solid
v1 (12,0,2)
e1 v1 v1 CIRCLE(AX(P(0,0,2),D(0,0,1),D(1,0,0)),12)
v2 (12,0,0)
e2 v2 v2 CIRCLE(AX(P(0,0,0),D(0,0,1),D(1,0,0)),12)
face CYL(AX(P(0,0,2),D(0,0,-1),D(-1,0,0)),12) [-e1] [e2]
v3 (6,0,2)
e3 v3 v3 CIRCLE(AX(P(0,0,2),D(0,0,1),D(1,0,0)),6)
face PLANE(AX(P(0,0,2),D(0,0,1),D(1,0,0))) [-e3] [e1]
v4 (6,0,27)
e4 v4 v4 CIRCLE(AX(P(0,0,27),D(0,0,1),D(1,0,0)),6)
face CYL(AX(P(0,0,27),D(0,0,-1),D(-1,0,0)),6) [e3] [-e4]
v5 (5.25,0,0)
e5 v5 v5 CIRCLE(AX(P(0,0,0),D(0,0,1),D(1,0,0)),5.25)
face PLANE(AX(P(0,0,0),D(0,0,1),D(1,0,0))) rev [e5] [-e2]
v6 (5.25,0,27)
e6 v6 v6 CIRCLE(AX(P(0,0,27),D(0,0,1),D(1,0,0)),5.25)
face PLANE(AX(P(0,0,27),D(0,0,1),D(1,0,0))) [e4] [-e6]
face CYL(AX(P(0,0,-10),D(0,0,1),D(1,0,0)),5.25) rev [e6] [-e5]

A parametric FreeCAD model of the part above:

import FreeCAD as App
import Part
import Sketcher
Q = App.Units.Quantity

doc = App.newDocument("Part")
params = doc.addObject("Spreadsheet::Sheet", "Params")
for row, (alias, value) in enumerate([
    ("sketch1_diameter", "24 mm"),
    ("pad1_length", "2 mm"),
    ("sketch2_diameter", "12 mm"),
    ("pad2_length", "25 mm"),
    ("sketch3_diameter", "10.5 mm"),
    ("pocket1_length", "37 mm"),
], start=1):
    params.set(f"A{row}", alias)
    params.set(f"B{row}", "=" + value)
    params.setAlias(f"B{row}", alias)

body = doc.addObject("PartDesign::Body", "Body")

# Sketch on XY plane
sketch1 = body.newObject("Sketcher::SketchObject", "Sketch")
sketch1.AttachmentSupport = (doc.getObject("XY_Plane"), [""])
sketch1.MapMode = "FlatFace"
sketch1.addGeometry(Part.Circle(App.Vector(0, 0, 0), App.Vector(0, 0, 1), 12), False)
sketch1.addConstraint(Sketcher.Constraint("Coincident", 0, 3, -1, 1))
sketch1.addConstraint(Sketcher.Constraint("Diameter", 0, Q("24 mm")))
sketch1.setExpression("Constraints[1]", "Params.sketch1_diameter")
pad1 = body.newObject("PartDesign::Pad", "Pad")
pad1.Profile = sketch1
pad1.setExpression("Length", "Params.pad1_length")

# Sketch on XY plane
sketch2 = body.newObject("Sketcher::SketchObject", "Sketch001")
sketch2.AttachmentSupport = (doc.getObject("XY_Plane"), [""])
sketch2.MapMode = "FlatFace"
sketch2.AttachmentOffset = App.Placement(App.Vector(0, 0, 2), App.Rotation())
sketch2.addGeometry(Part.Circle(App.Vector(0, 0, 0), App.Vector(0, 0, 1), 6), False)
sketch2.addConstraint(Sketcher.Constraint("Coincident", 0, 3, -1, 1))
sketch2.addConstraint(Sketcher.Constraint("Diameter", 0, Q("12 mm")))
sketch2.setExpression("Constraints[1]", "Params.sketch2_diameter")
pad2 = body.newObject("PartDesign::Pad", "Pad001")
pad2.Profile = sketch2
pad2.setExpression("Length", "Params.pad2_length")

# Sketch on XY plane
sketch3 = body.newObject("Sketcher::SketchObject", "Sketch002")
sketch3.AttachmentSupport = (doc.getObject("XY_Plane"), [""])
sketch3.MapMode = "FlatFace"
sketch3.AttachmentOffset = App.Placement(App.Vector(0, 0, 27), App.Rotation())
sketch3.addGeometry(Part.Circle(App.Vector(0, 0, 0), App.Vector(0, 0, 1), 5), False)
sketch3.addConstraint(Sketcher.Constraint("Coincident", 0, 3, -1, 1))
sketch3.addConstraint(Sketcher.Constraint("Diameter", 0, Q("10.5 mm")))
sketch3.setExpression("Constraints[1]", "Params.sketch3_diameter")
pocket1 = body.newObject("PartDesign::Pocket", "Pocket")
pocket1.Profile = sketch3
pocket1.setExpression("Length", "Params.pocket1_length")

doc.recompute()
